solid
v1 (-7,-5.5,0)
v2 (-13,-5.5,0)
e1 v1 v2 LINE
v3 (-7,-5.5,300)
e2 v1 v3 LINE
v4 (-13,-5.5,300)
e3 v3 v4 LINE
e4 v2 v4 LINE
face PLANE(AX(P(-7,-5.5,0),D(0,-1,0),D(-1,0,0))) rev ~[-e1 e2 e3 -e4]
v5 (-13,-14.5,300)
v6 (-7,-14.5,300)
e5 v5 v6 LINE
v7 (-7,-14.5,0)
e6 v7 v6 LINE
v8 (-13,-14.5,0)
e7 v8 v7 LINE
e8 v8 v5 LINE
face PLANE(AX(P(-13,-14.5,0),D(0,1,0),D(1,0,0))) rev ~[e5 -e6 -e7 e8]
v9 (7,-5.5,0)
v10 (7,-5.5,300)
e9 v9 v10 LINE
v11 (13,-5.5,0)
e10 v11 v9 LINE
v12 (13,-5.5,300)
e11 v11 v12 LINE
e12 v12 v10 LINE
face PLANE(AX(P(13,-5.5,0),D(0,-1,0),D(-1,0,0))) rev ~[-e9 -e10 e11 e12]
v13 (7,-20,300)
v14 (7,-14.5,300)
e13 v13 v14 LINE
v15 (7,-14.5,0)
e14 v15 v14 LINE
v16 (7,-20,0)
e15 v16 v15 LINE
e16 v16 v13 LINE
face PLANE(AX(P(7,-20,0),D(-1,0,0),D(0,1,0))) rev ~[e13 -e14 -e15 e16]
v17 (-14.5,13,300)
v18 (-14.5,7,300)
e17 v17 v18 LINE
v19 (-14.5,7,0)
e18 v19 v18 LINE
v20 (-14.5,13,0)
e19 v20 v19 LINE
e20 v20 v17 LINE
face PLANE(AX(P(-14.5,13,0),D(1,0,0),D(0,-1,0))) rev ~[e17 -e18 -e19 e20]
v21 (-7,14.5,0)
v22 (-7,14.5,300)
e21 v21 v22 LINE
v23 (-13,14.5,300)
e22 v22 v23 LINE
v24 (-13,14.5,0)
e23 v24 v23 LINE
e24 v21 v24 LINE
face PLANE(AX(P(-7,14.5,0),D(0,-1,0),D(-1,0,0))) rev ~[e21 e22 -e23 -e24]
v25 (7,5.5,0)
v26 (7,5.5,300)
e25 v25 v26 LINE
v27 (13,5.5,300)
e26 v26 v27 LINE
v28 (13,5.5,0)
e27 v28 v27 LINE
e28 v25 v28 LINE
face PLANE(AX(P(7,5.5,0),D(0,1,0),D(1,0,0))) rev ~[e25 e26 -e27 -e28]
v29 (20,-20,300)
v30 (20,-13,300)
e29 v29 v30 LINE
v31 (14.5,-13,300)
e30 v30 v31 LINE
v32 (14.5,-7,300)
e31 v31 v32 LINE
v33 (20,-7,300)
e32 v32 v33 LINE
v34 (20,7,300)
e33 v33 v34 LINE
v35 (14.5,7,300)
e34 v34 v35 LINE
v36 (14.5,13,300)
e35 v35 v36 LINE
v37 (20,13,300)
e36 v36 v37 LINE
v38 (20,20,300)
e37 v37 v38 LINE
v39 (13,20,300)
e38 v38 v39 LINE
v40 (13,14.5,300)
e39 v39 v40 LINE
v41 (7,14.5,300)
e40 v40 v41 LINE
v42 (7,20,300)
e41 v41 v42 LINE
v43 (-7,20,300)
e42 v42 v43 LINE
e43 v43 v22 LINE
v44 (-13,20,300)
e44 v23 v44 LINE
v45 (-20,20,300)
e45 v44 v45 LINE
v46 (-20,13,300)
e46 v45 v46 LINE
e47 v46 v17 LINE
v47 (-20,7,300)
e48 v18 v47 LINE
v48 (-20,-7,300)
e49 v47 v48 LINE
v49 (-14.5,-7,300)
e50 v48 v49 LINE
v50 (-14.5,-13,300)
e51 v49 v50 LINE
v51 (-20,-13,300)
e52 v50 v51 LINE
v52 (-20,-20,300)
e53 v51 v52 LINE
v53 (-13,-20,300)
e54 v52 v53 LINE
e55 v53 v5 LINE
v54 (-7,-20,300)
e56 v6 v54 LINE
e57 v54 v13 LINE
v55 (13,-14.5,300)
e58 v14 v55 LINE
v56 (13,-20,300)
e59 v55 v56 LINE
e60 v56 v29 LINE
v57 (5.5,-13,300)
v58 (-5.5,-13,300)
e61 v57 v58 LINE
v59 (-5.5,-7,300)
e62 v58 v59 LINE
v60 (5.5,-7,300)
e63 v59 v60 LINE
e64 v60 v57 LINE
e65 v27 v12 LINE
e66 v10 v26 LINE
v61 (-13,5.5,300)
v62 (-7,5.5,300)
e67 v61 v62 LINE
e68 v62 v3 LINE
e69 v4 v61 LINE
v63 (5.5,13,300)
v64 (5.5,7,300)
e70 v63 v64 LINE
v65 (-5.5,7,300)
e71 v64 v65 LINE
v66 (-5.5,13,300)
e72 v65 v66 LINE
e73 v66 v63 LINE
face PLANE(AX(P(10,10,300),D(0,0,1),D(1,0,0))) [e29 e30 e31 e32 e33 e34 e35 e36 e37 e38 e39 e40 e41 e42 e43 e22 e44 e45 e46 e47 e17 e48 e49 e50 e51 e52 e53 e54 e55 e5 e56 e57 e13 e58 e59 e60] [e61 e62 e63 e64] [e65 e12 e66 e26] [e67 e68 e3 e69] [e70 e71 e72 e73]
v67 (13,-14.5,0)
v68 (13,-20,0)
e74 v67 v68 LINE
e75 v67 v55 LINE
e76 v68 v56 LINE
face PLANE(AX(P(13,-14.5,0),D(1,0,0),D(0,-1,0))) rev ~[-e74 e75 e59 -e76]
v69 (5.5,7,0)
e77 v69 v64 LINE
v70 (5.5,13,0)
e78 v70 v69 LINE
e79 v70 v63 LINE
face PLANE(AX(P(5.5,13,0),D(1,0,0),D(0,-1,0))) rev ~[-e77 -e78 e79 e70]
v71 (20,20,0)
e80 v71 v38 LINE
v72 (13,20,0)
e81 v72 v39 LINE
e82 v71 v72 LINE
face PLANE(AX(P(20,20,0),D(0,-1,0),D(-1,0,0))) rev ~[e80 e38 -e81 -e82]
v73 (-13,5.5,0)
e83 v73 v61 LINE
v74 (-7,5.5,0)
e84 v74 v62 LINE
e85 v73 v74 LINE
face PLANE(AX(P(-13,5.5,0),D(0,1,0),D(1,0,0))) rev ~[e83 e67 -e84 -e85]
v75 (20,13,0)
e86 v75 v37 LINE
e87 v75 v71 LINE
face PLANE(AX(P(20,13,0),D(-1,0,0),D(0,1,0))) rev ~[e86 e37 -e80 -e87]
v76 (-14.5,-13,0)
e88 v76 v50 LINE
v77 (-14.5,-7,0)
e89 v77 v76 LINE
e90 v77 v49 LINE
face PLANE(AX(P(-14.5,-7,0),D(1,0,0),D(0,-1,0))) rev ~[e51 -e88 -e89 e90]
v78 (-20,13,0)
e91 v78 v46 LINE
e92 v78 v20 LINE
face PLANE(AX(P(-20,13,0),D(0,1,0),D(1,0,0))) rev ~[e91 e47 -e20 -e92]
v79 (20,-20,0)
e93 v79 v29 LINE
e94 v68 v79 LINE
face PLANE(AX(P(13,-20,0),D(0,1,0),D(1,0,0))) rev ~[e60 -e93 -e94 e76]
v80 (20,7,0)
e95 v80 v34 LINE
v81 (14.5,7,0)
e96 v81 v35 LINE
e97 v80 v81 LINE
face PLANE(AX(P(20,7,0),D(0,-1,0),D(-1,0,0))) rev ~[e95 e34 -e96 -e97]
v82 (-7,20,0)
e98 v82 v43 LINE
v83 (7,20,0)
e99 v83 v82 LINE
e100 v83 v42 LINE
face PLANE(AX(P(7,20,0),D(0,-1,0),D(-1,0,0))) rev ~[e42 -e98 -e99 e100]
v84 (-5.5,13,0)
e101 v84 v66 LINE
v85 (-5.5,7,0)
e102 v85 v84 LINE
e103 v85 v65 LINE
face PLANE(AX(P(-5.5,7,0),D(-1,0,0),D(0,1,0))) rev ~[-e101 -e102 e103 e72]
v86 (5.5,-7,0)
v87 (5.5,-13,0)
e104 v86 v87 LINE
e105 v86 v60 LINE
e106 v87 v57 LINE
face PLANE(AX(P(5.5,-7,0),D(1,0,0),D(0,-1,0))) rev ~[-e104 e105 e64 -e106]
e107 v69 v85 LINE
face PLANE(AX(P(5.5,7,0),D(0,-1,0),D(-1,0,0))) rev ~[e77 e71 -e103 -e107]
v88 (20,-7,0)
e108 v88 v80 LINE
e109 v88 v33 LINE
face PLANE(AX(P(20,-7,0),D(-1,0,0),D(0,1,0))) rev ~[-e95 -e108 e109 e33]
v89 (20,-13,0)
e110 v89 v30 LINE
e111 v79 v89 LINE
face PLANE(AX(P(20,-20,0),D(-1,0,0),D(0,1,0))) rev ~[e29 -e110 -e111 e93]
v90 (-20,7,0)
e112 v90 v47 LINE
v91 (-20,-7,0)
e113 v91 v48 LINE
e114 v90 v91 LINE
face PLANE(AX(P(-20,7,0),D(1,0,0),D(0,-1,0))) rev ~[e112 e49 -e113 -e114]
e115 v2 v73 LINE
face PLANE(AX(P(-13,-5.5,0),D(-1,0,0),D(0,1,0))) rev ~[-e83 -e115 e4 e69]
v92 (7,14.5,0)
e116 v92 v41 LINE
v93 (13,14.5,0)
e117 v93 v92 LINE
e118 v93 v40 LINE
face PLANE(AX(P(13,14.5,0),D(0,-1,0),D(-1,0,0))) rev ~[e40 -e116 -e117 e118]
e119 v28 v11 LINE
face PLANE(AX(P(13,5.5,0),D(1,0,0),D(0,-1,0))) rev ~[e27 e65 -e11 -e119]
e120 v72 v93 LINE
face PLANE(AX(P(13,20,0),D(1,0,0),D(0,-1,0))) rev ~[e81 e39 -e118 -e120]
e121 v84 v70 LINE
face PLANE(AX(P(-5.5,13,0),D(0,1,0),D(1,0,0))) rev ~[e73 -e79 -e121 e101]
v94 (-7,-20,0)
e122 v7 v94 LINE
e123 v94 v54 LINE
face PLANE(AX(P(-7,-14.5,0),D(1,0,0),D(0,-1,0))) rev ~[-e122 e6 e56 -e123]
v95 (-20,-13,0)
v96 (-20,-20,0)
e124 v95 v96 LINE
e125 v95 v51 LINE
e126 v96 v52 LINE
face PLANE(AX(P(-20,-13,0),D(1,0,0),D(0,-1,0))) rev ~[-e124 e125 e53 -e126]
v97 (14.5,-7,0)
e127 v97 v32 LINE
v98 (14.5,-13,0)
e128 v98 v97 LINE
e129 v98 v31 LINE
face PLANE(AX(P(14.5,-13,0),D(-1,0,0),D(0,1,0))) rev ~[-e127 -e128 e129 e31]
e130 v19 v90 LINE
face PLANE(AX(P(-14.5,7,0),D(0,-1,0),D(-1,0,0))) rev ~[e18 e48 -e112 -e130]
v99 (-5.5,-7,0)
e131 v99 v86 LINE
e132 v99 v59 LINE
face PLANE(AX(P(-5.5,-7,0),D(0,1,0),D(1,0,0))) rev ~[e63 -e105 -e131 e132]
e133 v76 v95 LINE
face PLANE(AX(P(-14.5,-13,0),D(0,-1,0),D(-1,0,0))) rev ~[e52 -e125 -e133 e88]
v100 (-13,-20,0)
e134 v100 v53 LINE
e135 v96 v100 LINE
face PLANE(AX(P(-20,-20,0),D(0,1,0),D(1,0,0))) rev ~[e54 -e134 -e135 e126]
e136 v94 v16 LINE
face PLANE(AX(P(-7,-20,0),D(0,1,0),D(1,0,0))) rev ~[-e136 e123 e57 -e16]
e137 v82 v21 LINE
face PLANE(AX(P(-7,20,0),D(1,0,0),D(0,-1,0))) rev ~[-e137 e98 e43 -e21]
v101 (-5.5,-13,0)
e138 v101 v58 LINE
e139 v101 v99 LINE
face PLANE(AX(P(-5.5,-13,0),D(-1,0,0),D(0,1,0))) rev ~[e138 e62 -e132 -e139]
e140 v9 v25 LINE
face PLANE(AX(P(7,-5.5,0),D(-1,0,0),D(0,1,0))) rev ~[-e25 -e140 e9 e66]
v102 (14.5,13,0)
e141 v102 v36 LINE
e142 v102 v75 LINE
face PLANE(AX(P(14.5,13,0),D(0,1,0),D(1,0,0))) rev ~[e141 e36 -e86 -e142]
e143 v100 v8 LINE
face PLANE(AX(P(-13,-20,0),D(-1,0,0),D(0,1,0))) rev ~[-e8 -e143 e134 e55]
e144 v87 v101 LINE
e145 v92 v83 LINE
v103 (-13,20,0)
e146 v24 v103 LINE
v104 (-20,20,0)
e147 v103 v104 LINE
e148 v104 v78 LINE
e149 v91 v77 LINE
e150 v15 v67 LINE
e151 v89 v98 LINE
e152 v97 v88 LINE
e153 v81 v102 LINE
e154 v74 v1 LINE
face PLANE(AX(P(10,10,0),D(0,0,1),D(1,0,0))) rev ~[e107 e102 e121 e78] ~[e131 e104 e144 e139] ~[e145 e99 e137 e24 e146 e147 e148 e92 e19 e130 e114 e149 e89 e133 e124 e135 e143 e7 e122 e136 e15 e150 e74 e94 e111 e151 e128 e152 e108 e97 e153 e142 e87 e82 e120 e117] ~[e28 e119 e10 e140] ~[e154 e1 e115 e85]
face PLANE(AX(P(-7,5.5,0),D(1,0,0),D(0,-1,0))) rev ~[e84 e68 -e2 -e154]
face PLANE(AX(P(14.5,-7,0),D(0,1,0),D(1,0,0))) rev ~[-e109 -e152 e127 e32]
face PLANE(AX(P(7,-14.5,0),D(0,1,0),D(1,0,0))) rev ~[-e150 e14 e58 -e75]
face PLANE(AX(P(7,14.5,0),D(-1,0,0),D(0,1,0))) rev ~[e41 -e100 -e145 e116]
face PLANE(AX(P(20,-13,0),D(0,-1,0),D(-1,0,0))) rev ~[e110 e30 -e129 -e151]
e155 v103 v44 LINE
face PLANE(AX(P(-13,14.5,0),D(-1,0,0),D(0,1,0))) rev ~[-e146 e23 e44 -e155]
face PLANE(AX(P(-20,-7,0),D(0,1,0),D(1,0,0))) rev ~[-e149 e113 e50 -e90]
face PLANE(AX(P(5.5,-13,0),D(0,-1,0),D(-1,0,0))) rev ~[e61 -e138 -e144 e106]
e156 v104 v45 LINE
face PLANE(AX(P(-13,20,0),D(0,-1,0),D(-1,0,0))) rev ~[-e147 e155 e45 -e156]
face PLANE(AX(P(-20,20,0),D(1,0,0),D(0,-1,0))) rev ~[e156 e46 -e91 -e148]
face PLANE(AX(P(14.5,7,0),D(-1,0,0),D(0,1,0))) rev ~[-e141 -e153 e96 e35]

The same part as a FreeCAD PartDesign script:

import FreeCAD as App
import Part
import Sketcher

V = App.Vector
Q = App.Units.Quantity

doc = App.newDocument("Part")
params = doc.addObject("Spreadsheet::Sheet", "Params")
for row, (alias, value) in enumerate([
    ("sketch1_width", "7 mm"),
    ("sketch1_width2", "6 mm"),
    ("sketch1_width3", "14 mm"),
    ("sketch1_width4", "11 mm"),
    ("sketch1_width5", "5.5 mm"),
    ("pad1_length", "300 mm"),
], start=1):
    params.set(f"A{row}", alias)
    params.set(f"B{row}", "=" + value)
    params.setAlias(f"B{row}", alias)

body = doc.addObject("PartDesign::Body", "Body")

# Sketch on XY plane
sketch1 = body.newObject("Sketcher::SketchObject", "Sketch")
sketch1.AttachmentSupport = (doc.getObject("XY_Plane"), [""])
sketch1.MapMode = "FlatFace"
sketch1.addGeometry([
    Part.LineSegment(V(20, 7, 0), V(14, 7, 0)),  # 0
    Part.LineSegment(V(14, 7, 0), V(14, 13, 0)),  # 1
    Part.LineSegment(V(14, 13, 0), V(20, 13, 0)),  # 2
    Part.LineSegment(V(20, 13, 0), V(20, 20, 0)),  # 3
    Part.LineSegment(V(20, 20, 0), V(13, 20, 0)),  # 4
    Part.LineSegment(V(13, 20, 0), V(13, 14, 0)),  # 5
    Part.LineSegment(V(13, 14, 0), V(7, 14, 0)),  # 6
    Part.LineSegment(V(7, 14, 0), V(7, 20, 0)),  # 7
    Part.LineSegment(V(7, 20, 0), V(-7, 20, 0)),  # 8
    Part.LineSegment(V(-7, 20, 0), V(-7, 14, 0)),  # 9
    Part.LineSegment(V(-7, 14, 0), V(-13, 14, 0)),  # 10
    Part.LineSegment(V(-13, 14, 0), V(-13, 20, 0)),  # 11
    Part.LineSegment(V(-13, 20, 0), V(-20, 20, 0)),  # 12
    Part.LineSegment(V(-20, 20, 0), V(-20, 13, 0)),  # 13
    Part.LineSegment(V(-20, 13, 0), V(-14, 13, 0)),  # 14
    Part.LineSegment(V(-14, 13, 0), V(-14, 7, 0)),  # 15
    Part.LineSegment(V(-14, 7, 0), V(-20, 7, 0)),  # 16
    Part.LineSegment(V(-20, 7, 0), V(-20, -7, 0)),  # 17
    Part.LineSegment(V(-20, -7, 0), V(-14, -7, 0)),  # 18
    Part.LineSegment(V(-14, -7, 0), V(-14, -13, 0)),  # 19
    Part.LineSegment(V(-14, -13, 0), V(-20, -13, 0)),  # 20
    Part.LineSegment(V(-20, -13, 0), V(-20, -20, 0)),  # 21
    Part.LineSegment(V(-20, -20, 0), V(-13, -20, 0)),  # 22
    Part.LineSegment(V(-13, -20, 0), V(-13, -14, 0)),  # 23
    Part.LineSegment(V(-13, -14, 0), V(-7, -14, 0)),  # 24
    Part.LineSegment(V(-7, -14, 0), V(-7, -20, 0)),  # 25
    Part.LineSegment(V(-7, -20, 0), V(7, -20, 0)),  # 26
    Part.LineSegment(V(7, -20, 0), V(7, -14, 0)),  # 27
    Part.LineSegment(V(7, -14, 0), V(13, -14, 0)),  # 28
    Part.LineSegment(V(13, -14, 0), V(13, -20, 0)),  # 29
    Part.LineSegment(V(13, -20, 0), V(20, -20, 0)),  # 30
    Part.LineSegment(V(20, -20, 0), V(20, -13, 0)),  # 31
    Part.LineSegment(V(20, -13, 0), V(14, -13, 0)),  # 32
    Part.LineSegment(V(14, -13, 0), V(14, -7, 0)),  # 33
    Part.LineSegment(V(14, -7, 0), V(20, -7, 0)),  # 34
    Part.LineSegment(V(20, -7, 0), V(20, 7, 0)),  # 35
    Part.LineSegment(V(7, 6, 0), V(13, 6, 0)),  # 36
    Part.LineSegment(V(13, 6, 0), V(13, -6, 0)),  # 37
    Part.LineSegment(V(13, -6, 0), V(7, -6, 0)),  # 38
    Part.LineSegment(V(7, -6, 0), V(7, 6, 0)),  # 39
    Part.LineSegment(V(-6, -13, 0), V(-6, -7, 0)),  # 40
    Part.LineSegment(V(-6, -7, 0), V(6, -7, 0)),  # 41
    Part.LineSegment(V(6, -7, 0), V(6, -13, 0)),  # 42
    Part.LineSegment(V(6, -13, 0), V(-6, -13, 0)),  # 43
    Part.LineSegment(V(-13, 6, 0), V(-7, 6, 0)),  # 44
    Part.LineSegment(V(-7, 6, 0), V(-7, -6, 0)),  # 45
    Part.LineSegment(V(-7, -6, 0), V(-13, -6, 0)),  # 46
    Part.LineSegment(V(-13, -6, 0), V(-13, 6, 0)),  # 47
    Part.LineSegment(V(6, 13, 0), V(6, 7, 0)),  # 48
    Part.LineSegment(V(6, 7, 0), V(-6, 7, 0)),  # 49
    Part.LineSegment(V(-6, 7, 0), V(-6, 13, 0)),  # 50
    Part.LineSegment(V(-6, 13, 0), V(6, 13, 0)),  # 51
], False)
sketch1.addConstraint([
    Sketcher.Constraint("Coincident", 0, 2, 1, 1),
    Sketcher.Constraint("Coincident", 1, 2, 2, 1),
    Sketcher.Constraint("Coincident", 2, 2, 3, 1),
    Sketcher.Constraint("Coincident", 3, 2, 4, 1),
    Sketcher.Constraint("Coincident", 4, 2, 5, 1),
    Sketcher.Constraint("Coincident", 5, 2, 6, 1),
    Sketcher.Constraint("Coincident", 6, 2, 7, 1),
    Sketcher.Constraint("Coincident", 7, 2, 8, 1),
    Sketcher.Constraint("Coincident", 8, 2, 9, 1),
    Sketcher.Constraint("Coincident", 9, 2, 10, 1),
    Sketcher.Constraint("Coincident", 10, 2, 11, 1),
    Sketcher.Constraint("Coincident", 11, 2, 12, 1),
    Sketcher.Constraint("Coincident", 12, 2, 13, 1),
    Sketcher.Constraint("Coincident", 13, 2, 14, 1),
    Sketcher.Constraint("Coincident", 14, 2, 15, 1),
    Sketcher.Constraint("Coincident", 15, 2, 16, 1),
    Sketcher.Constraint("Coincident", 16, 2, 17, 1),
    Sketcher.Constraint("Coincident", 17, 2, 18, 1),
    Sketcher.Constraint("Coincident", 18, 2, 19, 1),
    Sketcher.Constraint("Coincident", 19, 2, 20, 1),
    Sketcher.Constraint("Coincident", 20, 2, 21, 1),
    Sketcher.Constraint("Coincident", 21, 2, 22, 1),
    Sketcher.Constraint("Coincident", 22, 2, 23, 1),
    Sketcher.Constraint("Coincident", 23, 2, 24, 1),
    Sketcher.Constraint("Coincident", 24, 2, 25, 1),
    Sketcher.Constraint("Coincident", 25, 2, 26, 1),
    Sketcher.Constraint("Coincident", 26, 2, 27, 1),
    Sketcher.Constraint("Coincident", 27, 2, 28, 1),
    Sketcher.Constraint("Coincident", 28, 2, 29, 1),
    Sketcher.Constraint("Coincident", 29, 2, 30, 1),
    Sketcher.Constraint("Coincident", 30, 2, 31, 1),
    Sketcher.Constraint("Coincident", 31, 2, 32, 1),
    Sketcher.Constraint("Coincident", 32, 2, 33, 1),
    Sketcher.Constraint("Coincident", 33, 2, 34, 1),
    Sketcher.Constraint("Coincident", 34, 2, 35, 1),
    Sketcher.Constraint("Coincident", 35, 2, 0, 1),
    Sketcher.Constraint("Coincident", 36, 2, 37, 1),
    Sketcher.Constraint("Coincident", 37, 2, 38, 1),
    Sketcher.Constraint("Coincident", 38, 2, 39, 1),
    Sketcher.Constraint("Coincident", 39, 2, 36, 1),
    Sketcher.Constraint("Coincident", 40, 2, 41, 1),
    Sketcher.Constraint("Coincident", 41, 2, 42, 1),
    Sketcher.Constraint("Coincident", 42, 2, 43, 1),
    Sketcher.Constraint("Coincident", 43, 2, 40, 1),
    Sketcher.Constraint("Coincident", 44, 2, 45, 1),
    Sketcher.Constraint("Coincident", 45, 2, 46, 1),
    Sketcher.Constraint("Coincident", 46, 2, 47, 1),
    Sketcher.Constraint("Coincident", 47, 2, 44, 1),
    Sketcher.Constraint("Coincident", 48, 2, 49, 1),
    Sketcher.Constraint("Coincident", 49, 2, 50, 1),
    Sketcher.Constraint("Coincident", 50, 2, 51, 1),
    Sketcher.Constraint("Coincident", 51, 2, 48, 1),
    Sketcher.Constraint("Horizontal", 0),
    Sketcher.Constraint("Vertical", 1),
    Sketcher.Constraint("Horizontal", 2),
    Sketcher.Constraint("Vertical", 3),
    Sketcher.Constraint("Horizontal", 4),
    Sketcher.Constraint("Vertical", 5),
    Sketcher.Constraint("Horizontal", 6),
    Sketcher.Constraint("Vertical", 7),
    Sketcher.Constraint("Horizontal", 8),
    Sketcher.Constraint("Vertical", 9),
    Sketcher.Constraint("Horizontal", 10),
    Sketcher.Constraint("Vertical", 11),
    Sketcher.Constraint("Horizontal", 12),
    Sketcher.Constraint("Vertical", 13),
    Sketcher.Constraint("Horizontal", 14),
    Sketcher.Constraint("Vertical", 15),
    Sketcher.Constraint("Horizontal", 16),
    Sketcher.Constraint("Vertical", 17),
    Sketcher.Constraint("Horizontal", 18),
    Sketcher.Constraint("Vertical", 19),
    Sketcher.Constraint("Horizontal", 20),
    Sketcher.Constraint("Vertical", 21),
    Sketcher.Constraint("Horizontal", 22),
    Sketcher.Constraint("Vertical", 23),
    Sketcher.Constraint("Horizontal", 24),
    Sketcher.Constraint("Vertical", 25),
    Sketcher.Constraint("Horizontal", 26),
    Sketcher.Constraint("Vertical", 27),
    Sketcher.Constraint("Horizontal", 28),
    Sketcher.Constraint("Vertical", 29),
    Sketcher.Constraint("Horizontal", 30),
    Sketcher.Constraint("Vertical", 31),
    Sketcher.Constraint("Horizontal", 32),
    Sketcher.Constraint("Vertical", 33),
    Sketcher.Constraint("Horizontal", 34),
    Sketcher.Constraint("Vertical", 35),
    Sketcher.Constraint("Horizontal", 36),
    Sketcher.Constraint("Vertical", 37),
    Sketcher.Constraint("Horizontal", 38),
    Sketcher.Constraint("Vertical", 39),
    Sketcher.Constraint("Vertical", 40),
    Sketcher.Constraint("Horizontal", 41),
    Sketcher.Constraint("Vertical", 42),
    Sketcher.Constraint("Horizontal", 43),
    Sketcher.Constraint("Horizontal", 44),
    Sketcher.Constraint("Vertical", 45),
    Sketcher.Constraint("Horizontal", 46),
    Sketcher.Constraint("Vertical", 47),
    Sketcher.Constraint("Vertical", 48),
    Sketcher.Constraint("Horizontal", 49),
    Sketcher.Constraint("Vertical", 50),
    Sketcher.Constraint("Horizontal", 51),
    Sketcher.Constraint("Symmetric", 0, 2, 18, 2, -1, 1),
    Sketcher.Constraint("Symmetric", 2, 2, 20, 2, -1, 1),
    Sketcher.Constraint("Symmetric", 4, 2, 22, 2, -1, 1),
    Sketcher.Constraint("Symmetric", 6, 2, 24, 2, -1, 1),
    Sketcher.Constraint("Symmetric", 8, 2, 26, 2, -1, 1),
    Sketcher.Constraint("Symmetric", 10, 2, 28, 2, -1, 1),
    Sketcher.Constraint("Symmetric", 12, 2, 30, 2, -1, 1),
    Sketcher.Constraint("Symmetric", 14, 2, 32, 2, -1, 1),
    Sketcher.Constraint("Symmetric", 16, 2, 34, 2, -1, 1),
    Sketcher.Constraint("Symmetric", 38, 2, 44, 2, -1, 1),
    Sketcher.Constraint("Symmetric", 36, 2, 46, 2, -1, 1),
    Sketcher.Constraint("Symmetric", 40, 2, 48, 2, -1, 1),
    Sketcher.Constraint("Symmetric", 42, 2, 50, 2, -1, 1),
    Sketcher.Constraint("Symmetric", 6, 2, 9, 2, -2),
    Sketcher.Constraint("Symmetric", 4, 2, 11, 2, -2),
    Sketcher.Constraint("Symmetric", 2, 2, 13, 2, -2),
    Sketcher.Constraint("Symmetric", 0, 2, 15, 2, -2),
    Sketcher.Constraint("Horizontal", 4, 2, 7, 2),
    Sketcher.Constraint("Horizontal", 34, 2, 40, 2),
    Sketcher.Constraint("Horizontal", 32, 2, 42, 2),
    Sketcher.Constraint("Horizontal", 39, 2, 44, 2),
    Sketcher.Constraint("Vertical", 13, 2, 16, 2),
    Sketcher.Constraint("Vertical", 29, 2, 36, 2),
    Sketcher.Constraint("Vertical", 27, 2, 38, 2),
    Sketcher.Constraint("Vertical", 42, 2, 48, 2),
    Sketcher.Constraint("Equal", 46, 1),
    Sketcher.Constraint("Equal", 30, 3),
    Sketcher.Constraint("Equal", 34, 5),
    Sketcher.Constraint("Equal", 26, 17),
    Sketcher.Constraint("Equal", 51, 37),
    Sketcher.Constraint("DistanceX", 4, 2, 4, 1, Q("7 mm")),
    Sketcher.Constraint("DistanceX", 6, 2, 6, 1, Q("6 mm")),
    Sketcher.Constraint("DistanceX", 8, 2, 8, 1, Q("14 mm")),
    Sketcher.Constraint("DistanceX", 41, 1, 41, 2, Q("11 mm")),
    Sketcher.Constraint("DistanceX", 0, 2, 0, 1, Q("5.5 mm")),
])
sketch1.setExpression("Constraints[134]", "Params.sketch1_width")
sketch1.setExpression("Constraints[135]", "Params.sketch1_width2")
sketch1.setExpression("Constraints[136]", "Params.sketch1_width3")
sketch1.setExpression("Constraints[137]", "Params.sketch1_width4")
sketch1.setExpression("Constraints[138]", "Params.sketch1_width5")
pad1 = body.newObject("PartDesign::Pad", "Pad")
pad1.Profile = sketch1
pad1.setExpression("Length", "Params.pad1_length")

doc.recompute()
